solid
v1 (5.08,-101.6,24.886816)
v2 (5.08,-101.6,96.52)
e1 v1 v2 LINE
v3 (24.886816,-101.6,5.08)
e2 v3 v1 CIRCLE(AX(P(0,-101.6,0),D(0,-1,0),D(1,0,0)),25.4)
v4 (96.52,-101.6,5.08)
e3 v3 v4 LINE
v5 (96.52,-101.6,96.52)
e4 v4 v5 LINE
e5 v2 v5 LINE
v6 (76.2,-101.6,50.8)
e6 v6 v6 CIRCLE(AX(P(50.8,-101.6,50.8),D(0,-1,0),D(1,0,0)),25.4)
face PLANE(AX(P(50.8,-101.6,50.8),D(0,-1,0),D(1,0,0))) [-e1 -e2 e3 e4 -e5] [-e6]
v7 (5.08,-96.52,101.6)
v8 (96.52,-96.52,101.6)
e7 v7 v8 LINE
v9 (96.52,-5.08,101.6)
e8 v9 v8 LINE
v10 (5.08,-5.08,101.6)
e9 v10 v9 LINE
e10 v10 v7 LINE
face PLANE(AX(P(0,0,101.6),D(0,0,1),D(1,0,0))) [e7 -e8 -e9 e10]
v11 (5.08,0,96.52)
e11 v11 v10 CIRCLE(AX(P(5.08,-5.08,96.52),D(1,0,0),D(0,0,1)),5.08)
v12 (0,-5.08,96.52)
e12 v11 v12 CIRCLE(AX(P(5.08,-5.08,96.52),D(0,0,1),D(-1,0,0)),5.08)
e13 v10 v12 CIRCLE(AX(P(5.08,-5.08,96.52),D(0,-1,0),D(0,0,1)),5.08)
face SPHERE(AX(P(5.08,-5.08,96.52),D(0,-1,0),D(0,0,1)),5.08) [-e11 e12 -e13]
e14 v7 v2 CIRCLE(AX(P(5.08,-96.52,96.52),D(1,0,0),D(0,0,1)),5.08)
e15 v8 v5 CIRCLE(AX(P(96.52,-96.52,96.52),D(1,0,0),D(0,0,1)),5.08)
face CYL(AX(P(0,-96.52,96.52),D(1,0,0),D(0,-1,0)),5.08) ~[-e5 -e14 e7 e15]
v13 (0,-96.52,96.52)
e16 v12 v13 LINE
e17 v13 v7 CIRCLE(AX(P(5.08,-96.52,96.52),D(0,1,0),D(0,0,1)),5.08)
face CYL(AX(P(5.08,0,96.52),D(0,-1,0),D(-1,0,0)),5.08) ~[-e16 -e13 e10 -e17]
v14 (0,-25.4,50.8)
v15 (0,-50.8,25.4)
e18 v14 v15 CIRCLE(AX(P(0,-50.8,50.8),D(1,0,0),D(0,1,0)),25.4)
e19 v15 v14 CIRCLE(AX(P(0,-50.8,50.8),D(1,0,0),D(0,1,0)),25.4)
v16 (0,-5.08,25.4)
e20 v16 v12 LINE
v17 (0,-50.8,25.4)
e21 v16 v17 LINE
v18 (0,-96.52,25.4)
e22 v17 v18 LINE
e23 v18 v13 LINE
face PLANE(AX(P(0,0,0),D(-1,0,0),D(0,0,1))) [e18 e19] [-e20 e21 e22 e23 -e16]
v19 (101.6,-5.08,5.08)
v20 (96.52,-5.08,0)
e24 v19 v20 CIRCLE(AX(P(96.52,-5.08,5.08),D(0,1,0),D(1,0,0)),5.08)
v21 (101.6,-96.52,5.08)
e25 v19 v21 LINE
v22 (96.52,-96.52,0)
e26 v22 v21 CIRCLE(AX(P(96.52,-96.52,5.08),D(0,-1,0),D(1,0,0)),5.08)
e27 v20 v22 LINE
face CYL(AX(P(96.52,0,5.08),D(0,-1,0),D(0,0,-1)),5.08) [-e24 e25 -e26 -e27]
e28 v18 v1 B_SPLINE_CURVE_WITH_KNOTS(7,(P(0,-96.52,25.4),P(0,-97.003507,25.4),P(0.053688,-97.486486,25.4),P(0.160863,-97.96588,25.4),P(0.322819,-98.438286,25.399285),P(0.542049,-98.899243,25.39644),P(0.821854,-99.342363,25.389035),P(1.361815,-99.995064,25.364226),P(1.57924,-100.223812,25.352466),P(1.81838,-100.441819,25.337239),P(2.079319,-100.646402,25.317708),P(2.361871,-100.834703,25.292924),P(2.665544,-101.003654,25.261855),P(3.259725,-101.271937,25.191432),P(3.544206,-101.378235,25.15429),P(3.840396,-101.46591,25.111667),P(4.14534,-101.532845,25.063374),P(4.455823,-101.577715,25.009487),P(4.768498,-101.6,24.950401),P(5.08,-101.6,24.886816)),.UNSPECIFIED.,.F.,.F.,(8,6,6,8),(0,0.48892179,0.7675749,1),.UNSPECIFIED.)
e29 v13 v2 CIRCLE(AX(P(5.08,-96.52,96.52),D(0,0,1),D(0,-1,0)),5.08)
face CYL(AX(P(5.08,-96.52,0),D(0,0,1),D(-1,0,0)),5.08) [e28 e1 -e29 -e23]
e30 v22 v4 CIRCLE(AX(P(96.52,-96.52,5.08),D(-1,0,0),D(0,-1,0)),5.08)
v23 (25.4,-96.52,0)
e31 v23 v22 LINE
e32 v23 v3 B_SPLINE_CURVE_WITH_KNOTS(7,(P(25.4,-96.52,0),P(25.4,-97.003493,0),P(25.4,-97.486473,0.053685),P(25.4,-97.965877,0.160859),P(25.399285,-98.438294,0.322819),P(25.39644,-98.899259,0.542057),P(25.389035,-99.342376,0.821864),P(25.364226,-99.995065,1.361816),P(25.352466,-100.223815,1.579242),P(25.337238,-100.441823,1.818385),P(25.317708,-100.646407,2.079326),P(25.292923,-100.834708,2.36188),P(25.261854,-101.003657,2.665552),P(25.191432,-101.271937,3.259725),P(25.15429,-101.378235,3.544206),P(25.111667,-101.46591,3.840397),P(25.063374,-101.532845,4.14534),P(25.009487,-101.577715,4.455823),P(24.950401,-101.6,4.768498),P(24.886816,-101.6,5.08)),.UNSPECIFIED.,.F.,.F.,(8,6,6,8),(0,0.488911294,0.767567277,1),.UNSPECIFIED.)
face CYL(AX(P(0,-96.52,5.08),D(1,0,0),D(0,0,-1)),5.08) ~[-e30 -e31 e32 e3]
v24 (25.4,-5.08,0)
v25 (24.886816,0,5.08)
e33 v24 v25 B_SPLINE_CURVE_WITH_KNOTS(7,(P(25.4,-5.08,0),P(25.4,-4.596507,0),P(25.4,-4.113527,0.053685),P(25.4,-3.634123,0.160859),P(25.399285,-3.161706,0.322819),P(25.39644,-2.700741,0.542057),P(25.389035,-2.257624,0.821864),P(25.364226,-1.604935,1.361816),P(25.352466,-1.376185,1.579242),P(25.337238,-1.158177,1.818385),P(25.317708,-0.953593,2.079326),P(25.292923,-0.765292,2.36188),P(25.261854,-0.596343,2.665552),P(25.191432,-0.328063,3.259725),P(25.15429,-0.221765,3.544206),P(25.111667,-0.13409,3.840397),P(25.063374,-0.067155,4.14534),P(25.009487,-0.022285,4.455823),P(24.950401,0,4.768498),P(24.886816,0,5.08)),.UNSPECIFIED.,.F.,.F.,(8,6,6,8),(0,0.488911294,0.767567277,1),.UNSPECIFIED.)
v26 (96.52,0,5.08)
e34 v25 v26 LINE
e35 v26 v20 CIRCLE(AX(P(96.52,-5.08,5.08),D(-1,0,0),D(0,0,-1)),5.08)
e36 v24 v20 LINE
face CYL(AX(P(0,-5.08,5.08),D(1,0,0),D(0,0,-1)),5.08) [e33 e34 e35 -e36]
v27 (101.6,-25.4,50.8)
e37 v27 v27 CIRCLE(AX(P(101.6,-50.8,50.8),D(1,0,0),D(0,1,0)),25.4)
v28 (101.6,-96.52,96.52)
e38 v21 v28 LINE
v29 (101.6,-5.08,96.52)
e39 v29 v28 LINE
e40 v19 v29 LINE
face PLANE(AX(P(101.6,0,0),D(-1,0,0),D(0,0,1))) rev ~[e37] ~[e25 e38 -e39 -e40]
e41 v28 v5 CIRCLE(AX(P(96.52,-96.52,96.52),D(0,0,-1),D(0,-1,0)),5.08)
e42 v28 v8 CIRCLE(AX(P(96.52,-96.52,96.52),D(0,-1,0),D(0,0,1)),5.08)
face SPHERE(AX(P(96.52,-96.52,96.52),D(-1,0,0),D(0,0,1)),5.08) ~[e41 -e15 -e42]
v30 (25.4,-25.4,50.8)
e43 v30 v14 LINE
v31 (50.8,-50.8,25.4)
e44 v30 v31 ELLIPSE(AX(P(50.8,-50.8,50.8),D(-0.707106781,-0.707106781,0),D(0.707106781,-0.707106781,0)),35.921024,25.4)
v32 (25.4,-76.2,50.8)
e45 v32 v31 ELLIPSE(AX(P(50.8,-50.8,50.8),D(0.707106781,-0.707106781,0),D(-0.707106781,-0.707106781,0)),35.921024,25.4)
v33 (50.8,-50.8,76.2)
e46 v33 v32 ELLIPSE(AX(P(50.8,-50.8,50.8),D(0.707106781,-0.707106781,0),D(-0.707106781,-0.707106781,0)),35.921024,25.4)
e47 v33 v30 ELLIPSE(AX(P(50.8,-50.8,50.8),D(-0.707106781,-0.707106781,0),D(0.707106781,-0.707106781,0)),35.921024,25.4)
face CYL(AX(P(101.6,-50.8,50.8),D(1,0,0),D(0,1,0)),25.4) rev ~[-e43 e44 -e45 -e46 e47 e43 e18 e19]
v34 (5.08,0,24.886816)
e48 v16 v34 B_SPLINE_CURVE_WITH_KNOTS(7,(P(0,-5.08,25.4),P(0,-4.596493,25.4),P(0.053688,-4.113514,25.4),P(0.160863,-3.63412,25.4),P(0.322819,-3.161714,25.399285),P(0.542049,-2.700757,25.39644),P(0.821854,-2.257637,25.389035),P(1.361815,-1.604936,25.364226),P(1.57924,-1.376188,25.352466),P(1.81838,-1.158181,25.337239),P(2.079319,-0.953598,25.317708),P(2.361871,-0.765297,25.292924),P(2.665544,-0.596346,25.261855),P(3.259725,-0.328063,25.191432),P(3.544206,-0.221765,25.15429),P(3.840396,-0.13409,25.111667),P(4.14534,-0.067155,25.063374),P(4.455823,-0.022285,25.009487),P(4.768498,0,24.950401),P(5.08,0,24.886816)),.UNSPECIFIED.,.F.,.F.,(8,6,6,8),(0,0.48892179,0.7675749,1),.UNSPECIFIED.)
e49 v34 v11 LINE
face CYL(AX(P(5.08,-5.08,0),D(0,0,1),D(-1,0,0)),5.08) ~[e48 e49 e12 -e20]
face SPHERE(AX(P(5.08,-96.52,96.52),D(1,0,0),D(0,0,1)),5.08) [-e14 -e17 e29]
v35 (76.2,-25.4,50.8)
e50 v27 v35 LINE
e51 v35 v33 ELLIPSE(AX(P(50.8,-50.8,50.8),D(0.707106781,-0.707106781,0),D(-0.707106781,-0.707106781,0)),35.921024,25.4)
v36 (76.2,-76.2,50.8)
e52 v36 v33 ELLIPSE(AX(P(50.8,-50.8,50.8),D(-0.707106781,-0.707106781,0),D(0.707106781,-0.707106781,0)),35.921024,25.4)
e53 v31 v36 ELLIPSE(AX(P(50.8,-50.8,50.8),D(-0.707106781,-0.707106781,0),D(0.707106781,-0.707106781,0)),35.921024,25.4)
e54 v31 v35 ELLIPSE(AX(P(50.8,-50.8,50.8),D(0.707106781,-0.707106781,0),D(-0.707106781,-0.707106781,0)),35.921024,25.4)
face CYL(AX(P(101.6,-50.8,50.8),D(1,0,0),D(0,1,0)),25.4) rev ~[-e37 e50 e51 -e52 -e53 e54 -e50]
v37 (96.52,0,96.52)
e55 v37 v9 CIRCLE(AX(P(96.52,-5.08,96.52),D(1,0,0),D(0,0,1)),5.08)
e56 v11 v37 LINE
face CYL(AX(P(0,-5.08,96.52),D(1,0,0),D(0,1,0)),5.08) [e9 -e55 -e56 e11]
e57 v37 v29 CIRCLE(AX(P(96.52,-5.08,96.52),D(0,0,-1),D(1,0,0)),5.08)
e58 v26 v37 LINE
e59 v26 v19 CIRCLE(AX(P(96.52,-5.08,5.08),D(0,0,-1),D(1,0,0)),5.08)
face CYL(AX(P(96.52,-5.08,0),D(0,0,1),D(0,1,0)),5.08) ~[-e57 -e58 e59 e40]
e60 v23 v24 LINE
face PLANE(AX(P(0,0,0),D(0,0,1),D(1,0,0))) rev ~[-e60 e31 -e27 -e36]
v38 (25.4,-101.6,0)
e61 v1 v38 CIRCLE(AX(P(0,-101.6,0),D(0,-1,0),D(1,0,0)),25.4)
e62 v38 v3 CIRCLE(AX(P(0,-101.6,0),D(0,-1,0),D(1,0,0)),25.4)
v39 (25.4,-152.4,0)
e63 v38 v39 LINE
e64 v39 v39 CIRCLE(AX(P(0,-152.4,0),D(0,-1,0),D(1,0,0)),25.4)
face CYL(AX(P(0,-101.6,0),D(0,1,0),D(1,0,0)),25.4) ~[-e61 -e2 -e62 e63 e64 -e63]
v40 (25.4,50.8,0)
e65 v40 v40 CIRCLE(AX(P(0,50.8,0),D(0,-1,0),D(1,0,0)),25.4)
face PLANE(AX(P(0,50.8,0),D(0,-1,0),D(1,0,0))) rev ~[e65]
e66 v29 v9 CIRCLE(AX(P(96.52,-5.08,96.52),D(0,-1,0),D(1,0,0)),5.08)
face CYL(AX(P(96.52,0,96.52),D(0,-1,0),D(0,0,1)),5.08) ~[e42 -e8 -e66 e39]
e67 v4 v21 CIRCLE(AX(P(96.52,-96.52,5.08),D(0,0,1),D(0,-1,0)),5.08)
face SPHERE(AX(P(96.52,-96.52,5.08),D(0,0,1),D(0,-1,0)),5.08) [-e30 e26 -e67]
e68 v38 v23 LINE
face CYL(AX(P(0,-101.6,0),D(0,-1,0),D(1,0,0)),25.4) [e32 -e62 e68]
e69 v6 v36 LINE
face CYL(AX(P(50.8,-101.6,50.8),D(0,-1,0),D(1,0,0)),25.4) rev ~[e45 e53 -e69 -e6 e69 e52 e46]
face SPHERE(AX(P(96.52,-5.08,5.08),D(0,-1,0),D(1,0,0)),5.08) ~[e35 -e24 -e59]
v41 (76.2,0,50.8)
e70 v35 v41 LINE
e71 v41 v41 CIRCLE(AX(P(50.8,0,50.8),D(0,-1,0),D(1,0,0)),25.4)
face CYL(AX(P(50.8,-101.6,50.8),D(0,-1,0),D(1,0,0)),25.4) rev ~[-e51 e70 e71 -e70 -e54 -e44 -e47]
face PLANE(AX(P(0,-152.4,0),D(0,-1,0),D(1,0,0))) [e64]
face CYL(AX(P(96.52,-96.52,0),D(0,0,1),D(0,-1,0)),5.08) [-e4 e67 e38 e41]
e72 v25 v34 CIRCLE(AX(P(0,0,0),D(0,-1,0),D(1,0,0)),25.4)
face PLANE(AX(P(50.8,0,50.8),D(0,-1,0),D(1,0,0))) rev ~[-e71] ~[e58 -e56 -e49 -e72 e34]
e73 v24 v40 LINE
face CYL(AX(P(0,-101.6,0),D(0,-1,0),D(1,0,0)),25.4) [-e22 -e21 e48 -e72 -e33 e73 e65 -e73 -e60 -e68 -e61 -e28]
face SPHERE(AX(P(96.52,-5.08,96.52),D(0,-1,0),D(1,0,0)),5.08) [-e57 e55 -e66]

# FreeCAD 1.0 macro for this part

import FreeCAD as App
import Part
import Sketcher
Q = App.Units.Quantity


def edges_at(feature, points):
    """Names of the edges that pass closest to the given points."""
    edges = feature.Shape.Edges
    near = lambda p: min(range(len(edges)), key=lambda i: edges[i].distToShape(Part.Vertex(*p))[0])
    return sorted({f"Edge{near(p) + 1}" for p in points})


def add_polygon(sketch, points):
    """Adds a closed chain of lines whose ends are joined by coincident constraints."""
    first, n = sketch.GeometryCount, len(points)
    for a, b in zip(points, points[1:] + points[:1]):
        sketch.addGeometry(Part.LineSegment(App.Vector(*a, 0), App.Vector(*b, 0)), False)
    for i in range(n):
        sketch.addConstraint(Sketcher.Constraint("Coincident", first + i, 2, first + (i + 1) % n, 1))

doc = App.newDocument("Part")
params = doc.addObject("Spreadsheet::Sheet", "Params")
for row, (alias, value) in enumerate([
    ("sketch1_width", "4 in"),
    ("pad1_length", "4 in"),
    ("sketch2_diameter", "2 in"),
    ("pocket1_length", "4 in"),
    ("sketch3_diameter", "2 in"),
    ("pocket2_length", "4 in"),
    ("fillet_radius", "0.2 in"),
    ("sketch4_diameter", "2 in"),
    ("pad2_length", "2 in"),
    ("pad2_length2", "6 in"),
], start=1):
    params.set(f"A{row}", alias)
    params.set(f"B{row}", "=" + value)
    params.setAlias(f"B{row}", alias)

body = doc.addObject("PartDesign::Body", "Body")

# Sketch on XZ plane
sketch1 = body.newObject("Sketcher::SketchObject", "Sketch")
sketch1.AttachmentSupport = (doc.getObject("XZ_Plane"), [""])
sketch1.MapMode = "FlatFace"
add_polygon(sketch1, [(0, 101.6), (0, 0), (101.6, 0), (101.6, 101.6)])  # lines 0-3
sketch1.addConstraint([
    Sketcher.Constraint("Vertical", 0),
    Sketcher.Constraint("Horizontal", 1),
    Sketcher.Constraint("Vertical", 2),
    Sketcher.Constraint("Horizontal", 3),
    Sketcher.Constraint("Coincident", 0, 2, -1, 1),
    Sketcher.Constraint("Equal", 3, 0),
    Sketcher.Constraint("DistanceX", 1, 1, 1, 2, Q("4 in")),
])
sketch1.setExpression("Constraints[10]", "Params.sketch1_width")
pad1 = body.newObject("PartDesign::Pad", "Pad")
pad1.Profile = sketch1
pad1.setExpression("Length", "Params.pad1_length")

# Sketch on XZ plane
sketch2 = body.newObject("Sketcher::SketchObject", "Sketch001")
sketch2.AttachmentSupport = (doc.getObject("XZ_Plane"), [""])
sketch2.MapMode = "FlatFace"
sketch2.AttachmentOffset = App.Placement(App.Vector(0, 0, 4 * 25.4), App.Rotation())
sketch2.addGeometry(Part.Circle(App.Vector(50.8, 50.8, 0), App.Vector(0, 0, 1), 25.4), False)
sketch2.addConstraint([
    Sketcher.Constraint("Diameter", 0, Q("2 in")),
    Sketcher.Constraint("DistanceX", -1, 1, 0, 3, Q("2 in")),
    Sketcher.Constraint("DistanceY", -1, 1, 0, 3, Q("2 in")),
])
sketch2.setExpression("Constraints[0]", "Params.sketch2_diameter")
pocket1 = body.newObject("PartDesign::Pocket", "Pocket")
pocket1.Profile = sketch2
pocket1.setExpression("Length", "Params.pocket1_length")

# Sketch on YZ plane
sketch3 = body.newObject("Sketcher::SketchObject", "Sketch002")
sketch3.AttachmentSupport = (doc.getObject("YZ_Plane"), [""])
sketch3.MapMode = "FlatFace"
sketch3.AttachmentOffset = App.Placement(App.Vector(0, 0, 4 * 25.4), App.Rotation())
sketch3.addGeometry(Part.Circle(App.Vector(-50.8, 50.8, 0), App.Vector(0, 0, 1), 25.4), False)
sketch3.addConstraint([
    Sketcher.Constraint("Diameter", 0, Q("2 in")),
    Sketcher.Constraint("DistanceX", 0, 3, -1, 1, Q("2 in")),
    Sketcher.Constraint("DistanceY", -1, 1, 0, 3, Q("2 in")),
])
sketch3.setExpression("Constraints[0]", "Params.sketch3_diameter")
pocket2 = body.newObject("PartDesign::Pocket", "Pocket001")
pocket2.Profile = sketch3
pocket2.setExpression("Length", "Params.pocket2_length")
doc.recompute()

fillet = body.newObject("PartDesign::Fillet", "Fillet")
fillet.Base = (pocket2, edges_at(pocket2, [
    (50.8, -101.6, 101.6),
    (101.6, -50.8, 101.6),
    (101.6, -101.6, 50.8),
    (50.8, -101.6, 0),
    (101.6, -50.8, 0),
    (101.6, 0, 50.8),
    (0, -50.8, 101.6),
    (50.8, 0, 101.6),
    (0, -50.8, 0),
    (50.8, 0, 0),
    (0, -101.6, 50.8),
    (0, 0, 50.8),
]))
fillet.setExpression("Radius", "Params.fillet_radius")

# Sketch on XZ plane
sketch4 = body.newObject("Sketcher::SketchObject", "Sketch003")
sketch4.AttachmentSupport = (doc.getObject("XZ_Plane"), [""])
sketch4.MapMode = "FlatFace"
sketch4.AttachmentOffset = App.Placement(App.Vector(0, 0, 4 * 25.4), App.Rotation())
sketch4.addGeometry(Part.Circle(App.Vector(0, 0, 0), App.Vector(0, 0, 1), 25.4), False)
sketch4.addConstraint([
    Sketcher.Constraint("Coincident", 0, 3, -1, 1),
    Sketcher.Constraint("Diameter", 0, Q("2 in")),
])
sketch4.setExpression("Constraints[1]", "Params.sketch4_diameter")
pad2 = body.newObject("PartDesign::Pad", "Pad001")
pad2.Profile = sketch4
pad2.Type = "TwoLengths"
pad2.setExpression("Length", "Params.pad2_length")
pad2.setExpression("Length2", "Params.pad2_length2")

doc.recompute()
